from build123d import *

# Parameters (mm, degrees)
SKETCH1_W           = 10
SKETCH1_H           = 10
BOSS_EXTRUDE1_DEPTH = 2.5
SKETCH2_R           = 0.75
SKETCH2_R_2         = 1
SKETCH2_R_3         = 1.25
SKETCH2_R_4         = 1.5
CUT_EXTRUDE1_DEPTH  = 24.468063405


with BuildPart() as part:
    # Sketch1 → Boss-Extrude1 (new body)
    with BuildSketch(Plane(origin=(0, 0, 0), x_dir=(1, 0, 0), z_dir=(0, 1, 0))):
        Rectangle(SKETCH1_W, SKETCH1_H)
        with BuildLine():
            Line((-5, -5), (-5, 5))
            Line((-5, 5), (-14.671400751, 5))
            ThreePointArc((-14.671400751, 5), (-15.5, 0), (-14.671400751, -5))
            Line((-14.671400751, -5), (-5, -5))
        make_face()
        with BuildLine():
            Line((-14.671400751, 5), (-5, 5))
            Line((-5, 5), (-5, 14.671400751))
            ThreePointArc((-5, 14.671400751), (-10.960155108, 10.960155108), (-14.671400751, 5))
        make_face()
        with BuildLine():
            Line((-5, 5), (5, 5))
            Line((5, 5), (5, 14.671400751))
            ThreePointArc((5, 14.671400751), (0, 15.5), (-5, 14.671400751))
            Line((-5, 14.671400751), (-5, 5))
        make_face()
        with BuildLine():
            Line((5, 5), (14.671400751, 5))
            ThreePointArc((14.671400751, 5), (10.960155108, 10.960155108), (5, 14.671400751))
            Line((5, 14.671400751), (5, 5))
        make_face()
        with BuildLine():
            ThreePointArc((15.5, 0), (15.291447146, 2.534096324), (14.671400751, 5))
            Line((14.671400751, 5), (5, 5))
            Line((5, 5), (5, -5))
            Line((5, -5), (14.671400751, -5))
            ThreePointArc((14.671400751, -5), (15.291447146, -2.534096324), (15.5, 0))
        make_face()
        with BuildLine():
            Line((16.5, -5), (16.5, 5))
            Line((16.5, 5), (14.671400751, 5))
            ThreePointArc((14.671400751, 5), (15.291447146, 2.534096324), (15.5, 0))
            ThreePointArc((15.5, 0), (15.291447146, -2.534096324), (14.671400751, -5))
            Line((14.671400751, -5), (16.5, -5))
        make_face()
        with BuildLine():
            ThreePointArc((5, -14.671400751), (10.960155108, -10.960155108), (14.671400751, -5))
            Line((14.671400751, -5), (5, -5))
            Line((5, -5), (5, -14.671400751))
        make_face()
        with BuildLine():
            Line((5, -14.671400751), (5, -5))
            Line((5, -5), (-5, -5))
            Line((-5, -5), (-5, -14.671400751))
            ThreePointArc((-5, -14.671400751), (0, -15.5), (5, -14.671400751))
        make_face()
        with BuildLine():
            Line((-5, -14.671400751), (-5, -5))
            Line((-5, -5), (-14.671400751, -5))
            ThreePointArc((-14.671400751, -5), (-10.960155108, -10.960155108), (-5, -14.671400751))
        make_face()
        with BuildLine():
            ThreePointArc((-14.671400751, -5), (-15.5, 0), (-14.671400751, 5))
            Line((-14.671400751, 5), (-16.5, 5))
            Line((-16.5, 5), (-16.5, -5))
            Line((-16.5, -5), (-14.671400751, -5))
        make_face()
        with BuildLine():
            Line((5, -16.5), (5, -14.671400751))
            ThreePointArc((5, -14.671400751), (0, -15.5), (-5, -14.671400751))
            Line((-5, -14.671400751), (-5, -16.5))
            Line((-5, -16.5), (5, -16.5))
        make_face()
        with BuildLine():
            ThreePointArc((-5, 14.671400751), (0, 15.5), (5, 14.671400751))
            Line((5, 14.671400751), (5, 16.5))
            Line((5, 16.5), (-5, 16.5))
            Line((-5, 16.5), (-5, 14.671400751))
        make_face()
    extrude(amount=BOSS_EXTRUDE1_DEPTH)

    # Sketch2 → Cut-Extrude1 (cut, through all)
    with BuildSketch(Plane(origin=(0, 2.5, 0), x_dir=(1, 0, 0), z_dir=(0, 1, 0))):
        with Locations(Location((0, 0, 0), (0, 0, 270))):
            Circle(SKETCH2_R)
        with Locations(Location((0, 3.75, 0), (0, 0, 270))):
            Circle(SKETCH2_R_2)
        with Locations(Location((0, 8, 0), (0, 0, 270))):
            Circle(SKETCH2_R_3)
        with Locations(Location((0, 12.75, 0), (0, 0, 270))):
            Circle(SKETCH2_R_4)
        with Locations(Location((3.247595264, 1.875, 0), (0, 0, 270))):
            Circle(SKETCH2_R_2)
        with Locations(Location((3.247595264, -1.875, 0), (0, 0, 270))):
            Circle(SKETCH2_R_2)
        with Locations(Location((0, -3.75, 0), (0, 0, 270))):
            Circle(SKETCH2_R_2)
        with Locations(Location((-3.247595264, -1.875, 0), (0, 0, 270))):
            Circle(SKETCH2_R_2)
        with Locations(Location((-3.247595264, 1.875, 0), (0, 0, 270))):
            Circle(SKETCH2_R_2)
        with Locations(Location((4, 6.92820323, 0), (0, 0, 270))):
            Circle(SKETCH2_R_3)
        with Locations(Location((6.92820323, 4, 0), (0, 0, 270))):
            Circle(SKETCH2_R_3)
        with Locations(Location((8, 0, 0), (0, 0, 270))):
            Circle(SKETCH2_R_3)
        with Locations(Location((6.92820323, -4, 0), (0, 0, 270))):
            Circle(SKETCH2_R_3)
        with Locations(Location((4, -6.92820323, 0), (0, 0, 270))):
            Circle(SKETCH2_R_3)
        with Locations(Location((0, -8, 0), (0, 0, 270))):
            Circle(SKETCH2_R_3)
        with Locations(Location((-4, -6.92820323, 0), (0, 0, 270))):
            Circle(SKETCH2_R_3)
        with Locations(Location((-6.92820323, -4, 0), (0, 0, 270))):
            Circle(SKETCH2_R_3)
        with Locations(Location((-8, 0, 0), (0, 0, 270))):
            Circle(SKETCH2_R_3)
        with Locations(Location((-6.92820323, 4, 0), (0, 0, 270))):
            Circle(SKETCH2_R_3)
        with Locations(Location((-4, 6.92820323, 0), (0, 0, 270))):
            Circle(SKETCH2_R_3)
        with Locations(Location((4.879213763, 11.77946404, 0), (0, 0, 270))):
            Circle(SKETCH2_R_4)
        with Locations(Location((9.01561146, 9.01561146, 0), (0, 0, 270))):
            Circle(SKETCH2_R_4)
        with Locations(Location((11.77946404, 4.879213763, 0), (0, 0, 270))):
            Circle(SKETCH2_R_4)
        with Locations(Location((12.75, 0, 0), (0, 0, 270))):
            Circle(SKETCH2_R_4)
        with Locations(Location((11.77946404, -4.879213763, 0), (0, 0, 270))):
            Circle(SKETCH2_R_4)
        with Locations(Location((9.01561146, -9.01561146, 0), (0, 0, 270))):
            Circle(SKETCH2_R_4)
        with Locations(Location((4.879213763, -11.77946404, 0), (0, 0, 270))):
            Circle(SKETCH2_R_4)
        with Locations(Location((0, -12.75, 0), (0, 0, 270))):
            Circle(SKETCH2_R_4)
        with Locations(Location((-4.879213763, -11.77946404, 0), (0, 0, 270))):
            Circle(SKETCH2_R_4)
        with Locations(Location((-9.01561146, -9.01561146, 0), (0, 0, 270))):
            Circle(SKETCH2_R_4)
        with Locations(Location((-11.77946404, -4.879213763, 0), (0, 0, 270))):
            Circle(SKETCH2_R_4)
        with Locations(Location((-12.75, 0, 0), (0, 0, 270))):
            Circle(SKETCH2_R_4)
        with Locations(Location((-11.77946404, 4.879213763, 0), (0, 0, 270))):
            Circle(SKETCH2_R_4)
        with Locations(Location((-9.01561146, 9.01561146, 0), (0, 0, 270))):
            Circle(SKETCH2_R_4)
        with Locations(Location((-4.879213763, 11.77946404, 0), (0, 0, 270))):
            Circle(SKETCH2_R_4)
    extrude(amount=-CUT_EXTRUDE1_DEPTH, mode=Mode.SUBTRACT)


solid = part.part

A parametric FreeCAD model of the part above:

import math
import FreeCAD as App
import Part
import Sketcher

doc = App.newDocument("Part")
body = doc.addObject("PartDesign::Body", "Body")

# Sketch on XZ plane
sketch1 = doc.addObject("Sketcher::SketchObject", "Sketch")
body.addObject(sketch1)
sketch1.AttachmentSupport = (doc.XZ_Plane, [""])
sketch1.MapMode = "FlatFace"
sketch1.addGeometry(Part.ArcOfCircle(Part.Circle(App.Vector(0, 0, 0), App.Vector(0, 0, 1), 15.5), math.radians(-71.180937), math.radians(-18.819063)), False)
sketch1.addGeometry(Part.LineSegment(App.Vector(5, -14.671401, 0), App.Vector(5, -16.5, 0)), False)
sketch1.addGeometry(Part.LineSegment(App.Vector(5, -16.5, 0), App.Vector(-5, -16.5, 0)), False)
sketch1.addGeometry(Part.LineSegment(App.Vector(-5, -16.5, 0), App.Vector(-5, -14.671401, 0)), False)
sketch1.addGeometry(Part.ArcOfCircle(Part.Circle(App.Vector(0, 0, 0), App.Vector(0, 0, 1), 15.5), math.radians(-161.180937), math.radians(-108.819063)), False)
sketch1.addGeometry(Part.LineSegment(App.Vector(-14.671401, -5, 0), App.Vector(-16.5, -5, 0)), False)
sketch1.addGeometry(Part.LineSegment(App.Vector(-16.5, -5, 0), App.Vector(-16.5, 5, 0)), False)
sketch1.addGeometry(Part.LineSegment(App.Vector(-16.5, 5, 0), App.Vector(-14.671401, 5, 0)), False)
sketch1.addGeometry(Part.ArcOfCircle(Part.Circle(App.Vector(0, 0, 0), App.Vector(0, 0, 1), 15.5), math.radians(108.819063), math.radians(161.180937)), False)
sketch1.addGeometry(Part.LineSegment(App.Vector(-5, 14.671401, 0), App.Vector(-5, 16.5, 0)), False)
sketch1.addGeometry(Part.LineSegment(App.Vector(-5, 16.5, 0), App.Vector(5, 16.5, 0)), False)
sketch1.addGeometry(Part.LineSegment(App.Vector(5, 16.5, 0), App.Vector(5, 14.671401, 0)), False)
sketch1.addGeometry(Part.ArcOfCircle(Part.Circle(App.Vector(0, 0, 0), App.Vector(0, 0, 1), 15.5), math.radians(18.819063), math.radians(71.180937)), False)
sketch1.addGeometry(Part.LineSegment(App.Vector(14.671401, 5, 0), App.Vector(16.5, 5, 0)), False)
sketch1.addGeometry(Part.LineSegment(App.Vector(16.5, 5, 0), App.Vector(16.5, -5, 0)), False)
sketch1.addGeometry(Part.LineSegment(App.Vector(16.5, -5, 0), App.Vector(14.671401, -5, 0)), False)
sketch1.addConstraint(Sketcher.Constraint("Coincident", 0, 1, 1, 1))
sketch1.addConstraint(Sketcher.Constraint("Coincident", 1, 2, 2, 1))
sketch1.addConstraint(Sketcher.Constraint("Coincident", 2, 2, 3, 1))
sketch1.addConstraint(Sketcher.Constraint("Coincident", 3, 2, 4, 2))
sketch1.addConstraint(Sketcher.Constraint("Coincident", 4, 1, 5, 1))
sketch1.addConstraint(Sketcher.Constraint("Coincident", 5, 2, 6, 1))
sketch1.addConstraint(Sketcher.Constraint("Coincident", 6, 2, 7, 1))
sketch1.addConstraint(Sketcher.Constraint("Coincident", 7, 2, 8, 2))
sketch1.addConstraint(Sketcher.Constraint("Coincident", 8, 1, 9, 1))
sketch1.addConstraint(Sketcher.Constraint("Coincident", 9, 2, 10, 1))
sketch1.addConstraint(Sketcher.Constraint("Coincident", 10, 2, 11, 1))
sketch1.addConstraint(Sketcher.Constraint("Coincident", 11, 2, 12, 2))
sketch1.addConstraint(Sketcher.Constraint("Coincident", 12, 1, 13, 1))
sketch1.addConstraint(Sketcher.Constraint("Coincident", 13, 2, 14, 1))
sketch1.addConstraint(Sketcher.Constraint("Coincident", 14, 2, 15, 1))
sketch1.addConstraint(Sketcher.Constraint("Coincident", 15, 2, 0, 2))
sketch1.addConstraint(Sketcher.Constraint("Vertical", 1))
sketch1.addConstraint(Sketcher.Constraint("Horizontal", 2))
sketch1.addConstraint(Sketcher.Constraint("Vertical", 3))
sketch1.addConstraint(Sketcher.Constraint("Horizontal", 5))
sketch1.addConstraint(Sketcher.Constraint("Vertical", 6))
sketch1.addConstraint(Sketcher.Constraint("Horizontal", 7))
sketch1.addConstraint(Sketcher.Constraint("Vertical", 9))
sketch1.addConstraint(Sketcher.Constraint("Horizontal", 10))
sketch1.addConstraint(Sketcher.Constraint("Vertical", 11))
sketch1.addConstraint(Sketcher.Constraint("Horizontal", 13))
sketch1.addConstraint(Sketcher.Constraint("Vertical", 14))
sketch1.addConstraint(Sketcher.Constraint("Horizontal", 15))
sketch1.addConstraint(Sketcher.Constraint("Coincident", 0, 3, -1, 1))
sketch1.addConstraint(Sketcher.Constraint("Coincident", 4, 3, -1, 1))
sketch1.addConstraint(Sketcher.Constraint("Coincident", 8, 3, -1, 1))
sketch1.addConstraint(Sketcher.Constraint("Coincident", 12, 3, -1, 1))
sketch1.addConstraint(Sketcher.Constraint("Equal", 0, 4))
sketch1.addConstraint(Sketcher.Constraint("Equal", 4, 8))
sketch1.addConstraint(Sketcher.Constraint("Equal", 8, 12))
sketch1.addConstraint(Sketcher.Constraint("Symmetric", 1, 2, 9, 2, -1, 1))
sketch1.addConstraint(Sketcher.Constraint("Symmetric", 5, 2, 13, 2, -1, 1))
sketch1.addConstraint(Sketcher.Constraint("Horizontal", 0, 1, 3, 2))
sketch1.addConstraint(Sketcher.Constraint("Horizontal", 8, 1, 11, 2))
sketch1.addConstraint(Sketcher.Constraint("Horizontal", 7, 2, 12, 1))
sketch1.addConstraint(Sketcher.Constraint("Horizontal", 5, 2, 14, 2))
sketch1.addConstraint(Sketcher.Constraint("Equal", 15, 1))
sketch1.addConstraint(Sketcher.Constraint("Equal", 10, 6))
sketch1.addConstraint(Sketcher.Constraint("Radius", 0, 15.5))
sketch1.addConstraint(Sketcher.Constraint("DistanceX", 2, 2, 2, 1, 10.0))
sketch1.addConstraint(Sketcher.Constraint("DistanceY", 1, 2, -1, 1, 16.5))
pad1 = doc.addObject("PartDesign::Pad", "Pad")
body.addObject(pad1)
pad1.Profile = sketch1
pad1.Length = 2.5
pad1.Reversed = True

# Sketch on XZ plane
sketch2 = doc.addObject("Sketcher::SketchObject", "Sketch001")
body.addObject(sketch2)
sketch2.AttachmentSupport = (doc.XZ_Plane, [""])
sketch2.MapMode = "FlatFace"
sketch2.AttachmentOffset = App.Placement(App.Vector(0, 0, -2.5), App.Rotation())
sketch2.addGeometry(Part.Circle(App.Vector(0, 0, 0), App.Vector(0, 0, 1), 0.75), False)
sketch2.addGeometry(Part.Circle(App.Vector(0, -3.75, 0), App.Vector(0, 0, 1), 1), False)
sketch2.addGeometry(Part.Circle(App.Vector(0, -8, 0), App.Vector(0, 0, 1), 1.25), False)
sketch2.addGeometry(Part.Circle(App.Vector(0, -12.75, 0), App.Vector(0, 0, 1), 1.5), False)
sketch2.addGeometry(Part.Circle(App.Vector(3.247595, -1.875, 0), App.Vector(0, 0, 1), 1), False)
sketch2.addGeometry(Part.Circle(App.Vector(3.247595, 1.875, 0), App.Vector(0, 0, 1), 1), False)
sketch2.addGeometry(Part.Circle(App.Vector(0, 3.75, 0), App.Vector(0, 0, 1), 1), False)
sketch2.addGeometry(Part.Circle(App.Vector(-3.247595, 1.875, 0), App.Vector(0, 0, 1), 1), False)
sketch2.addGeometry(Part.Circle(App.Vector(-3.247595, -1.875, 0), App.Vector(0, 0, 1), 1), False)
sketch2.addGeometry(Part.Circle(App.Vector(4, -6.928203, 0), App.Vector(0, 0, 1), 1.25), False)
sketch2.addGeometry(Part.Circle(App.Vector(6.928203, -4, 0), App.Vector(0, 0, 1), 1.25), False)
sketch2.addGeometry(Part.Circle(App.Vector(8, 0, 0), App.Vector(0, 0, 1), 1.25), False)
sketch2.addGeometry(Part.Circle(App.Vector(6.928203, 4, 0), App.Vector(0, 0, 1), 1.25), False)
sketch2.addGeometry(Part.Circle(App.Vector(4, 6.928203, 0), App.Vector(0, 0, 1), 1.25), False)
sketch2.addGeometry(Part.Circle(App.Vector(0, 8, 0), App.Vector(0, 0, 1), 1.25), False)
sketch2.addGeometry(Part.Circle(App.Vector(-4, 6.928203, 0), App.Vector(0, 0, 1), 1.25), False)
sketch2.addGeometry(Part.Circle(App.Vector(-6.928203, 4, 0), App.Vector(0, 0, 1), 1.25), False)
sketch2.addGeometry(Part.Circle(App.Vector(-8, 0, 0), App.Vector(0, 0, 1), 1.25), False)
sketch2.addGeometry(Part.Circle(App.Vector(-6.928203, -4, 0), App.Vector(0, 0, 1), 1.25), False)
sketch2.addGeometry(Part.Circle(App.Vector(-4, -6.928203, 0), App.Vector(0, 0, 1), 1.25), False)
sketch2.addGeometry(Part.Circle(App.Vector(4.879214, -11.779464, 0), App.Vector(0, 0, 1), 1.5), False)
sketch2.addGeometry(Part.Circle(App.Vector(9.015611, -9.015611, 0), App.Vector(0, 0, 1), 1.5), False)
sketch2.addGeometry(Part.Circle(App.Vector(11.779464, -4.879214, 0), App.Vector(0, 0, 1), 1.5), False)
sketch2.addGeometry(Part.Circle(App.Vector(12.75, 0, 0), App.Vector(0, 0, 1), 1.5), False)
sketch2.addGeometry(Part.Circle(App.Vector(11.779464, 4.879214, 0), App.Vector(0, 0, 1), 1.5), False)
sketch2.addGeometry(Part.Circle(App.Vector(9.015611, 9.015611, 0), App.Vector(0, 0, 1), 1.5), False)
sketch2.addGeometry(Part.Circle(App.Vector(4.879214, 11.779464, 0), App.Vector(0, 0, 1), 1.5), False)
sketch2.addGeometry(Part.Circle(App.Vector(0, 12.75, 0), App.Vector(0, 0, 1), 1.5), False)
sketch2.addGeometry(Part.Circle(App.Vector(-4.879214, 11.779464, 0), App.Vector(0, 0, 1), 1.5), False)
sketch2.addGeometry(Part.Circle(App.Vector(-9.015611, 9.015611, 0), App.Vector(0, 0, 1), 1.5), False)
sketch2.addGeometry(Part.Circle(App.Vector(-11.779464, 4.879214, 0), App.Vector(0, 0, 1), 1.5), False)
sketch2.addGeometry(Part.Circle(App.Vector(-12.75, 0, 0), App.Vector(0, 0, 1), 1.5), False)
sketch2.addGeometry(Part.Circle(App.Vector(-11.779464, -4.879214, 0), App.Vector(0, 0, 1), 1.5), False)
sketch2.addGeometry(Part.Circle(App.Vector(-9.015611, -9.015611, 0), App.Vector(0, 0, 1), 1.5), False)
sketch2.addGeometry(Part.Circle(App.Vector(-4.879214, -11.779464, 0), App.Vector(0, 0, 1), 1.5), False)
sketch2.addConstraint(Sketcher.Constraint("Coincident", 0, 3, -1, 1))
sketch2.addConstraint(Sketcher.Constraint("Equal", 1, 4))
sketch2.addConstraint(Sketcher.Constraint("Equal", 4, 5))
sketch2.addConstraint(Sketcher.Constraint("Equal", 5, 6))
sketch2.addConstraint(Sketcher.Constraint("Equal", 6, 7))
sketch2.addConstraint(Sketcher.Constraint("Equal", 7, 8))
sketch2.addConstraint(Sketcher.Constraint("Equal", 2, 9))
sketch2.addConstraint(Sketcher.Constraint("Equal", 9, 10))
sketch2.addConstraint(Sketcher.Constraint("Equal", 10, 11))
sketch2.addConstraint(Sketcher.Constraint("Equal", 11, 12))
sketch2.addConstraint(Sketcher.Constraint("Equal", 12, 13))
sketch2.addConstraint(Sketcher.Constraint("Equal", 13, 14))
sketch2.addConstraint(Sketcher.Constraint("Equal", 14, 15))
sketch2.addConstraint(Sketcher.Constraint("Equal", 15, 16))
sketch2.addConstraint(Sketcher.Constraint("Equal", 16, 17))
sketch2.addConstraint(Sketcher.Constraint("Equal", 17, 18))
sketch2.addConstraint(Sketcher.Constraint("Equal", 18, 19))
sketch2.addConstraint(Sketcher.Constraint("Equal", 3, 20))
sketch2.addConstraint(Sketcher.Constraint("Equal", 20, 21))
sketch2.addConstraint(Sketcher.Constraint("Equal", 21, 22))
sketch2.addConstraint(Sketcher.Constraint("Equal", 22, 23))
sketch2.addConstraint(Sketcher.Constraint("Equal", 23, 24))
sketch2.addConstraint(Sketcher.Constraint("Equal", 24, 25))
sketch2.addConstraint(Sketcher.Constraint("Equal", 25, 26))
sketch2.addConstraint(Sketcher.Constraint("Equal", 26, 27))
sketch2.addConstraint(Sketcher.Constraint("Equal", 27, 28))
sketch2.addConstraint(Sketcher.Constraint("Equal", 28, 29))
sketch2.addConstraint(Sketcher.Constraint("Equal", 29, 30))
sketch2.addConstraint(Sketcher.Constraint("Equal", 30, 31))
sketch2.addConstraint(Sketcher.Constraint("Equal", 31, 32))
sketch2.addConstraint(Sketcher.Constraint("Equal", 32, 33))
sketch2.addConstraint(Sketcher.Constraint("Equal", 33, 34))
sketch2.addConstraint(Sketcher.Constraint("Symmetric", 1, 3, 6, 3, -1, 1))
sketch2.addConstraint(Sketcher.Constraint("Symmetric", 4, 3, 7, 3, -1, 1))
sketch2.addConstraint(Sketcher.Constraint("Symmetric", 5, 3, 8, 3, -1, 1))
sketch2.addConstraint(Sketcher.Constraint("Symmetric", 2, 3, 14, 3, -1, 1))
sketch2.addConstraint(Sketcher.Constraint("Symmetric", 9, 3, 15, 3, -1, 1))
sketch2.addConstraint(Sketcher.Constraint("Symmetric", 10, 3, 16, 3, -1, 1))
sketch2.addConstraint(Sketcher.Constraint("Symmetric", 11, 3, 17, 3, -1, 1))
sketch2.addConstraint(Sketcher.Constraint("Symmetric", 12, 3, 18, 3, -1, 1))
sketch2.addConstraint(Sketcher.Constraint("Symmetric", 13, 3, 19, 3, -1, 1))
sketch2.addConstraint(Sketcher.Constraint("Symmetric", 3, 3, 27, 3, -1, 1))
sketch2.addConstraint(Sketcher.Constraint("Symmetric", 20, 3, 28, 3, -1, 1))
sketch2.addConstraint(Sketcher.Constraint("Symmetric", 21, 3, 29, 3, -1, 1))
sketch2.addConstraint(Sketcher.Constraint("Symmetric", 22, 3, 30, 3, -1, 1))
sketch2.addConstraint(Sketcher.Constraint("Symmetric", 23, 3, 31, 3, -1, 1))
sketch2.addConstraint(Sketcher.Constraint("Symmetric", 24, 3, 32, 3, -1, 1))
sketch2.addConstraint(Sketcher.Constraint("Symmetric", 25, 3, 33, 3, -1, 1))
sketch2.addConstraint(Sketcher.Constraint("Symmetric", 26, 3, 34, 3, -1, 1))
sketch2.addConstraint(Sketcher.Constraint("Symmetric", 5, 3, 7, 3, -2))
sketch2.addConstraint(Sketcher.Constraint("Symmetric", 13, 3, 15, 3, -2))
sketch2.addConstraint(Sketcher.Constraint("Symmetric", 12, 3, 16, 3, -2))
sketch2.addConstraint(Sketcher.Constraint("Symmetric", 26, 3, 28, 3, -2))
sketch2.addConstraint(Sketcher.Constraint("Symmetric", 25, 3, 29, 3, -2))
sketch2.addConstraint(Sketcher.Constraint("Symmetric", 24, 3, 30, 3, -2))
sketch2.addConstraint(Sketcher.Constraint("PointOnObject", 1, 3, -2))
sketch2.addConstraint(Sketcher.Constraint("PointOnObject", 2, 3, -2))
sketch2.addConstraint(Sketcher.Constraint("PointOnObject", 3, 3, -2))
sketch2.addConstraint(Sketcher.Constraint("PointOnObject", 11, 3, -1))
sketch2.addConstraint(Sketcher.Constraint("PointOnObject", 23, 3, -1))
sketch2.addConstraint(Sketcher.Constraint("Diameter", 1, 2.0))
sketch2.addConstraint(Sketcher.Constraint("Diameter", 3, 3.0))
sketch2.addConstraint(Sketcher.Constraint("Diameter", 0, 1.5))
sketch2.addConstraint(Sketcher.Constraint("Diameter", 2, 2.5))
sketch2.addConstraint(Sketcher.Constraint("DistanceY", 2, 3, -1, 1, 8.0))
sketch2.addConstraint(Sketcher.Constraint("DistanceX", -1, 1, 9, 3, 4.0))
sketch2.addConstraint(Sketcher.Constraint("DistanceY", 10, 3, -1, 1, 4.0))
sketch2.addConstraint(Sketcher.Constraint("DistanceX", -1, 1, 11, 3, 8.0))
sketch2.addConstraint(Sketcher.Constraint("DistanceY", 3, 3, 1, 3, 9.0))
sketch2.addConstraint(Sketcher.Constraint("DistanceY", 1, 3, 6, 3, 7.5))
sketch2.addConstraint(Sketcher.Constraint("DistanceX", -1, 1, 23, 3, 12.75))
sketch2.addConstraint(Sketcher.Constraint("DistanceY", 4, 3, 5, 3, 3.75))
sketch2.addConstraint(Sketcher.Constraint("DistanceX", -1, 1, 21, 3, 9.015611))
sketch2.addConstraint(Sketcher.Constraint("DistanceY", 21, 3, -1, 1, 9.015611))
sketch2.addConstraint(Sketcher.Constraint("DistanceX", 7, 3, 5, 3, 6.495191))
sketch2.addConstraint(Sketcher.Constraint("DistanceY", 20, 3, 9, 3, 4.851261))
sketch2.addConstraint(Sketcher.Constraint("DistanceX", 20, 3, 10, 3, 2.048989))
sketch2.addConstraint(Sketcher.Constraint("DistanceY", 21, 3, 9, 3, 2.087408))
sketch2.addConstraint(Sketcher.Constraint("DistanceX", 10, 3, 21, 3, 2.087408))
sketch2.addConstraint(Sketcher.Constraint("DistanceX", 10, 3, 22, 3, 4.851261))
sketch2.addConstraint(Sketcher.Constraint("DistanceY", 9, 3, 22, 3, 2.048989))
pocket1 = doc.addObject("PartDesign::Pocket", "Pocket")
body.addObject(pocket1)
pocket1.Profile = sketch2
pocket1.Type = "ThroughAll"
pocket1.Reversed = True

doc.recompute()
